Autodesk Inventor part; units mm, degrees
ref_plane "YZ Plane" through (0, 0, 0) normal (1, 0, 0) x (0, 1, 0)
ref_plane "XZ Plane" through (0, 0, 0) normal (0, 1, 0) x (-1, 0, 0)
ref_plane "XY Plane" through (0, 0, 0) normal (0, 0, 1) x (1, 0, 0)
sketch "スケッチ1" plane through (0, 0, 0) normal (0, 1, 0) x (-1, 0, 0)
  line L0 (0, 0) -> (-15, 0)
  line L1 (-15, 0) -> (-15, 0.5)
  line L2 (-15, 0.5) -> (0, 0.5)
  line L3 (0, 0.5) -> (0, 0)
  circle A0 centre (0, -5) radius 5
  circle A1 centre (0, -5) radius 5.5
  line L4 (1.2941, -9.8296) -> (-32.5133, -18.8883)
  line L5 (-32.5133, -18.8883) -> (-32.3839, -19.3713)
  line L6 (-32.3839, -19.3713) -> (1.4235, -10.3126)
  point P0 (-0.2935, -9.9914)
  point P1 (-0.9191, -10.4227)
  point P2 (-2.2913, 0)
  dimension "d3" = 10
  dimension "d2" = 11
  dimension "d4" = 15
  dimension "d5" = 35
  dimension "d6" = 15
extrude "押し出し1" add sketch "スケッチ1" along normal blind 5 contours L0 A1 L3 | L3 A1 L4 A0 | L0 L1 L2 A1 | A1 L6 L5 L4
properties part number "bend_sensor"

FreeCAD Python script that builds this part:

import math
import FreeCAD as App
import Part
import Sketcher

V = App.Vector
Q = App.Units.Quantity

doc = App.newDocument("Part")
params = doc.addObject("Spreadsheet::Sheet", "Params")
for row, (alias, value) in enumerate([
    ("sketch1_radius", "5 mm"),
    ("sketch1_radius2", "5.5 mm"),
    ("sketch1_width", "15 mm"),
    ("sketch1_length", "35 mm"),
    ("pad1_length", "5 mm"),
], start=1):
    params.set(f"A{row}", alias)
    params.set(f"B{row}", "=" + value)
    params.setAlias(f"B{row}", alias)

body = doc.addObject("PartDesign::Body", "Body")

sketch1 = body.newObject("Sketcher::SketchObject", "Sketch")
sketch1.AttachmentSupport = (doc.getObject("XZ_Plane"), [""])
sketch1.MapMode = "FlatFace"
sketch1.addGeometry([
    Part.ArcOfCircle(Part.Circle(V(0, -5, 0), V(0, 0, 1), 5), math.radians(90), math.radians(255)),
    Part.LineSegment(V(-1.3, -9.8, 0), V(32.5, -18.9, 0)),
    Part.LineSegment(V(32.5, -18.9, 0), V(32.4, -19.4, 0)),
    Part.LineSegment(V(32.4, -19.4, 0), V(-1.4, -10.3, 0)),
    Part.ArcOfCircle(Part.Circle(V(0, -5, 0), V(0, 0, 1), 5.5), math.radians(90), math.radians(255)),
    Part.LineSegment(V(0, 0.5, 0), V(15, 0.5, 0)),
    Part.LineSegment(V(15, 0.5, 0), V(15, 0, 0)),
    Part.LineSegment(V(15, 0, 0), V(0, 0, 0)),
], False)
sketch1.addConstraint([
    Sketcher.Constraint("Tangent", 0, 2, 1, 1),
    Sketcher.Constraint("Coincident", 1, 2, 2, 1),
    Sketcher.Constraint("Coincident", 2, 2, 3, 1),
    Sketcher.Constraint("Tangent", 3, 2, 4, 2),
    Sketcher.Constraint("Tangent", 4, 1, 5, 1),
    Sketcher.Constraint("Coincident", 5, 2, 6, 1),
    Sketcher.Constraint("Coincident", 6, 2, 7, 1),
    Sketcher.Constraint("Tangent", 7, 2, 0, 1),
    Sketcher.Constraint("Horizontal", 5),
    Sketcher.Constraint("Vertical", 6),
    Sketcher.Constraint("Horizontal", 7),
    Sketcher.Constraint("Coincident", 7, 2, -1, 1),
    Sketcher.Constraint("Coincident", 4, 3, 0, 3),
    Sketcher.Constraint("Perpendicular", 1, 2),
    Sketcher.Constraint("Perpendicular", 2, 3),
    Sketcher.Constraint("Radius", 0, 5.0),
    Sketcher.Constraint("Radius", 4, 5.5),
    Sketcher.Constraint("DistanceX", 5, 1, 5, 2, 15.0),
    Sketcher.Constraint("Angle", 1, Q("-15 deg")),
    Sketcher.Constraint("Distance", 1, 35.0),
])
sketch1.setExpression("Constraints[15]", "Params.sketch1_radius")
sketch1.setExpression("Constraints[16]", "Params.sketch1_radius2")
sketch1.setExpression("Constraints[17]", "Params.sketch1_width")
sketch1.setExpression("Constraints[19]", "Params.sketch1_length")
pad1 = body.newObject("PartDesign::Pad", "Pad")
pad1.Profile = sketch1
pad1.setExpression("Length", "Params.pad1_length")
pad1.Reversed = True

doc.recompute()
